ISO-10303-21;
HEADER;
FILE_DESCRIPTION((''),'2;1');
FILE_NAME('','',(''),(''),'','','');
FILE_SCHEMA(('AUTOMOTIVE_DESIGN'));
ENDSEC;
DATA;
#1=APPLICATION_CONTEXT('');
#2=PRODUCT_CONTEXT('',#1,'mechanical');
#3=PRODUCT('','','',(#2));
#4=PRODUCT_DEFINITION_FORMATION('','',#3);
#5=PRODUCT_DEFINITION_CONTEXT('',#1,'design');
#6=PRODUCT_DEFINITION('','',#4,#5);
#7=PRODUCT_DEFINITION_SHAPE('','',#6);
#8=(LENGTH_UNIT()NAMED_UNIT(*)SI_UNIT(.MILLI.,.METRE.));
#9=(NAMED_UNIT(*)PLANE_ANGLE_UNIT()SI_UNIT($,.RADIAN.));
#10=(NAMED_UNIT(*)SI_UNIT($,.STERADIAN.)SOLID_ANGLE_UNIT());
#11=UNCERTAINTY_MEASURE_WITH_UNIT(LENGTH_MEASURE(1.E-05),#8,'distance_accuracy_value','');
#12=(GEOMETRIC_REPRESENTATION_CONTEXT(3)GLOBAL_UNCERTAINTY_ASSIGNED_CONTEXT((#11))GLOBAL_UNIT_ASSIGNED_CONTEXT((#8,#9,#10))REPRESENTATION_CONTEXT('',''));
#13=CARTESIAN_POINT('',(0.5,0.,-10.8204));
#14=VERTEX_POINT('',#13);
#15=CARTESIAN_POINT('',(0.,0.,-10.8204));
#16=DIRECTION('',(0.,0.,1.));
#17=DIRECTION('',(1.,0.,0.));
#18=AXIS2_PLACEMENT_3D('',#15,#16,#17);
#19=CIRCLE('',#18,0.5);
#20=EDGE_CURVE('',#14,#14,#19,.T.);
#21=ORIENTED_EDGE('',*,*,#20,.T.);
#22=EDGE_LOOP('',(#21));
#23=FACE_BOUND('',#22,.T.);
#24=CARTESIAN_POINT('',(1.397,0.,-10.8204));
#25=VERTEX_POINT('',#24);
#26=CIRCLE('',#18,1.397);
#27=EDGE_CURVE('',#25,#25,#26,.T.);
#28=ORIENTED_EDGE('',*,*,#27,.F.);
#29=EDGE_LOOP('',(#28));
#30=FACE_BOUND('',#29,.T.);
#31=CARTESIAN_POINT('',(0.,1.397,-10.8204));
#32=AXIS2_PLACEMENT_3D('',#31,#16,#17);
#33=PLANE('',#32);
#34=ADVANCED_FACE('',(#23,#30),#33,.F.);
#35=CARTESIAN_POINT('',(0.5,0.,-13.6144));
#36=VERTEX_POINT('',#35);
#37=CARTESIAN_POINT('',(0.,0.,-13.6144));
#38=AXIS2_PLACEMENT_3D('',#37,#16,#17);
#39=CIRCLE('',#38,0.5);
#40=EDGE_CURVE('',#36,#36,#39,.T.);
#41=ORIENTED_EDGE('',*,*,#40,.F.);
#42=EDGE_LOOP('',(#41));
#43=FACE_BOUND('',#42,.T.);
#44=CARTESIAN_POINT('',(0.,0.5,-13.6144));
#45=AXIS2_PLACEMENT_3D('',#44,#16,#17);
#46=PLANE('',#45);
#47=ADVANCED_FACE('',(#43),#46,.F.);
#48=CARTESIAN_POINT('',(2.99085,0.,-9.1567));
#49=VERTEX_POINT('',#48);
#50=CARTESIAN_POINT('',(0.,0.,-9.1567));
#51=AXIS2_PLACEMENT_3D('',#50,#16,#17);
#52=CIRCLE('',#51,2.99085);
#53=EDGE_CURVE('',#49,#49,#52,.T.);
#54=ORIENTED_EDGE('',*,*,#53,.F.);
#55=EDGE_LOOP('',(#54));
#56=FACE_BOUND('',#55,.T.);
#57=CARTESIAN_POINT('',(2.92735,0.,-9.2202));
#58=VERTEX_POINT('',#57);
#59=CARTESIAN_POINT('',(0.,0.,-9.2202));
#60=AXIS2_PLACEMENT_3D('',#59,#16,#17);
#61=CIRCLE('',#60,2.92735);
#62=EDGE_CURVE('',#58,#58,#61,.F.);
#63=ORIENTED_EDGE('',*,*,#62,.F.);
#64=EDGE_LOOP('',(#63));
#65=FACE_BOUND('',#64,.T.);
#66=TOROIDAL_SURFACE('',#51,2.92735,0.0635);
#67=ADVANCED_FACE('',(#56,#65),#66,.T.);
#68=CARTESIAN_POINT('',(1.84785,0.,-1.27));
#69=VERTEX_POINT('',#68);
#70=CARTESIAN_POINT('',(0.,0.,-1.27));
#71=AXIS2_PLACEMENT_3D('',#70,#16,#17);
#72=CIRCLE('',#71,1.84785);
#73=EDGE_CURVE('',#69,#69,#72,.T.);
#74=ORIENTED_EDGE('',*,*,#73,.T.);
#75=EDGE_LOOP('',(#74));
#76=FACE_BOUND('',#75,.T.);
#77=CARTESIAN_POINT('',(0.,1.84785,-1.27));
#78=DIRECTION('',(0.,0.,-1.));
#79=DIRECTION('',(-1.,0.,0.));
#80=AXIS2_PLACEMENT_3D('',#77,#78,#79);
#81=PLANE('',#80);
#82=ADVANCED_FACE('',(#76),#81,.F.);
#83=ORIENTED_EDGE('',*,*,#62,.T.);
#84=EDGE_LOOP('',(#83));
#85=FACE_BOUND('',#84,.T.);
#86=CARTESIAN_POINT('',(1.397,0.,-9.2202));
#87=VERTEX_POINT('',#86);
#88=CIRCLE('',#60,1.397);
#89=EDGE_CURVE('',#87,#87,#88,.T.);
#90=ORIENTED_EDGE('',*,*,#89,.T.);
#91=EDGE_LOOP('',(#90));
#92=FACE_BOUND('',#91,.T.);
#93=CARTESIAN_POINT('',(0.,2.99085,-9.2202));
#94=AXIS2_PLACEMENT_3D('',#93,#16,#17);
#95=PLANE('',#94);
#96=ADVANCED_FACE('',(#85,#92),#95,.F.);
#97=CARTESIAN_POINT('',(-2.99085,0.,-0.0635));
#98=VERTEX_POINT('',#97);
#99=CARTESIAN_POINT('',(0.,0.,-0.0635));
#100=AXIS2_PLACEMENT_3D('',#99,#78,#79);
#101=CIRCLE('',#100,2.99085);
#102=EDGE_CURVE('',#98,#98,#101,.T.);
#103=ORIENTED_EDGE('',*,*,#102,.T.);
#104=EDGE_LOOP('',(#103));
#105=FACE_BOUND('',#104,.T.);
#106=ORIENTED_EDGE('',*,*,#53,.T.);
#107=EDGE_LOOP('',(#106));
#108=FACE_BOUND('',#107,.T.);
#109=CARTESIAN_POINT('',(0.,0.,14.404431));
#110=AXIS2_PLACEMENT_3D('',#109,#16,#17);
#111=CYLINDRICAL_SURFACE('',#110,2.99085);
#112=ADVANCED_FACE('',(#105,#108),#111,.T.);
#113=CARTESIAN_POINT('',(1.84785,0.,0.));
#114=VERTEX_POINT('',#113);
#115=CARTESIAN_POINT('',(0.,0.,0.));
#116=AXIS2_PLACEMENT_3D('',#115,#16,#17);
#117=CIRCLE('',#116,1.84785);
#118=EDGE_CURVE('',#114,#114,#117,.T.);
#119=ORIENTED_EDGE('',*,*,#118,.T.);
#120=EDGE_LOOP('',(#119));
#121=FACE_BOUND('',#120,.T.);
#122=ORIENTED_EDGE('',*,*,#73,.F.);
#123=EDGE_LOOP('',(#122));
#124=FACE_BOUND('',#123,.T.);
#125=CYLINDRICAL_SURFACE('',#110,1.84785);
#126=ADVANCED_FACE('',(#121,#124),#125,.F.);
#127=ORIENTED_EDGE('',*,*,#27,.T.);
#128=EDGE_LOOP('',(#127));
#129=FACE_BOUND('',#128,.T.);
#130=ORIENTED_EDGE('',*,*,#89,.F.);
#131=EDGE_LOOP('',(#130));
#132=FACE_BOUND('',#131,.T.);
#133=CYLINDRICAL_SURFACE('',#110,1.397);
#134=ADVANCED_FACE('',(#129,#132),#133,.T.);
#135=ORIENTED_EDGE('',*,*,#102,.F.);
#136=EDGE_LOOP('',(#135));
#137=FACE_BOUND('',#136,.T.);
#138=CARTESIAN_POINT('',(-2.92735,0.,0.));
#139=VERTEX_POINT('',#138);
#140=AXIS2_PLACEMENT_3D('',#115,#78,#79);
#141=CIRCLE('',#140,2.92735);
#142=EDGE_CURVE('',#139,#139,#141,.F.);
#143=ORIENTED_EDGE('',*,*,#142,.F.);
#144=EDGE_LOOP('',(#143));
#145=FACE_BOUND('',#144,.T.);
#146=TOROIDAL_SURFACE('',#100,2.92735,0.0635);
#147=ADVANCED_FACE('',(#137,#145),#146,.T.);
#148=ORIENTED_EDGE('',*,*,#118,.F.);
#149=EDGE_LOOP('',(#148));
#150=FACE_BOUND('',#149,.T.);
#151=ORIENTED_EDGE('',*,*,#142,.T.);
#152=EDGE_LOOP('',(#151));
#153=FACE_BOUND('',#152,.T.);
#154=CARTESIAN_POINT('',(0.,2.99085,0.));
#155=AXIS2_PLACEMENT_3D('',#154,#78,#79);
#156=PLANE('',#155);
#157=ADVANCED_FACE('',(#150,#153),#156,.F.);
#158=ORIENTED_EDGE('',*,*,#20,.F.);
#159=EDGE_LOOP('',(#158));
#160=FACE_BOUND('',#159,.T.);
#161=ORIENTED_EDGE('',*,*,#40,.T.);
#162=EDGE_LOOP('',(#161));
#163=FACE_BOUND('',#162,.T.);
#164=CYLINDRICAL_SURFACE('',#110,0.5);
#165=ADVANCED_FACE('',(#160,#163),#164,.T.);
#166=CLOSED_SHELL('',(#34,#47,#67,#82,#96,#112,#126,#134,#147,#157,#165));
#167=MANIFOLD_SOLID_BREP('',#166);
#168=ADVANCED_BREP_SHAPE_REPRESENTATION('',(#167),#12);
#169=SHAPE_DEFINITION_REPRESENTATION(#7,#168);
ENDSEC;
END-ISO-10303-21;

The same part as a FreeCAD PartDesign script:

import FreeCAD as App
import Part
import Sketcher
Q = App.Units.Quantity


def edges_at(feature, points):
    """Names of the edges that pass closest to the given points."""
    edges = feature.Shape.Edges
    near = lambda p: min(range(len(edges)), key=lambda i: edges[i].distToShape(Part.Vertex(*p))[0])
    return sorted({f"Edge{near(p) + 1}" for p in points})

doc = App.newDocument("Part")
body = doc.addObject("PartDesign::Body", "Body")

sketch1 = body.newObject("Sketcher::SketchObject", "Sketch")
sketch1.AttachmentSupport = (doc.getObject("YZ_Plane"), [""])
sketch1.MapMode = "FlatFace"
sketch1.addGeometry([
    Part.LineSegment(App.Vector(2.99085, -9.2202, 0), App.Vector(2.99085, 0, 0)),
    Part.LineSegment(App.Vector(2.99085, 0, 0), App.Vector(1.84785, 0, 0)),
    Part.LineSegment(App.Vector(1.84785, 0, 0), App.Vector(1.84785, -1.27, 0)),
    Part.LineSegment(App.Vector(1.84785, -1.27, 0), App.Vector(0, -1.27, 0)),
    Part.LineSegment(App.Vector(0, -1.27, 0), App.Vector(0, -13.6144, 0)),
    Part.LineSegment(App.Vector(0, -13.6144, 0), App.Vector(0.5, -13.6144, 0)),
    Part.LineSegment(App.Vector(0.5, -13.6144, 0), App.Vector(0.5, -10.8204, 0)),
    Part.LineSegment(App.Vector(0.5, -10.8204, 0), App.Vector(1.397, -10.8204, 0)),
    Part.LineSegment(App.Vector(1.397, -10.8204, 0), App.Vector(1.397, -9.2202, 0)),
    Part.LineSegment(App.Vector(1.397, -9.2202, 0), App.Vector(2.99085, -9.2202, 0)),
], False)
sketch1.addConstraint([
    Sketcher.Constraint("Coincident", 0, 2, 1, 1),
    Sketcher.Constraint("Coincident", 1, 2, 2, 1),
    Sketcher.Constraint("Coincident", 2, 2, 3, 1),
    Sketcher.Constraint("Coincident", 3, 2, 4, 1),
    Sketcher.Constraint("Coincident", 4, 2, 5, 1),
    Sketcher.Constraint("Coincident", 5, 2, 6, 1),
    Sketcher.Constraint("Coincident", 6, 2, 7, 1),
    Sketcher.Constraint("Coincident", 7, 2, 8, 1),
    Sketcher.Constraint("Coincident", 8, 2, 9, 1),
    Sketcher.Constraint("Coincident", 9, 2, 0, 1),
    Sketcher.Constraint("Vertical", 0),
    Sketcher.Constraint("Horizontal", 1),
    Sketcher.Constraint("Vertical", 2),
    Sketcher.Constraint("Horizontal", 3),
    Sketcher.Constraint("Vertical", 4),
    Sketcher.Constraint("Horizontal", 5),
    Sketcher.Constraint("Vertical", 6),
    Sketcher.Constraint("Horizontal", 7),
    Sketcher.Constraint("Vertical", 8),
    Sketcher.Constraint("Horizontal", 9),
    Sketcher.Constraint("PointOnObject", 0, 2, -1),
    Sketcher.Constraint("PointOnObject", 3, 2, -2),
    Sketcher.Constraint("DistanceY", 2, 2, 2, 1, Q("0.05 in")),
    Sketcher.Constraint("DistanceY", 6, 1, 6, 2, Q("0.11 in")),
    Sketcher.Constraint("DistanceX", 1, 2, 1, 1, Q("0.045 in")),
    Sketcher.Constraint("DistanceY", 0, 1, 0, 2, Q("0.363 in")),
    Sketcher.Constraint("DistanceY", 4, 2, 4, 1, Q("0.486 in")),
    Sketcher.Constraint("DistanceX", -1, 1, 7, 2, Q("0.055 in")),
    Sketcher.Constraint("DistanceX", 5, 1, 5, 2, Q("0.5 mm")),
    Sketcher.Constraint("DistanceX", 3, 2, 3, 1, Q("1.84785 mm")),
])
revolution = body.newObject("PartDesign::Revolution", "Revolution")
revolution.Profile = sketch1
revolution.ReferenceAxis = (sketch1, ["V_Axis"])
revolution.Angle = 360
doc.recompute()

fillet = body.newObject("PartDesign::Fillet", "Fillet")
fillet.Base = (revolution, edges_at(revolution, [(0, -2.991, 0), (0, -2.991, -9.22)]))
fillet.Radius = Q("0.0025 in")

doc.recompute()
